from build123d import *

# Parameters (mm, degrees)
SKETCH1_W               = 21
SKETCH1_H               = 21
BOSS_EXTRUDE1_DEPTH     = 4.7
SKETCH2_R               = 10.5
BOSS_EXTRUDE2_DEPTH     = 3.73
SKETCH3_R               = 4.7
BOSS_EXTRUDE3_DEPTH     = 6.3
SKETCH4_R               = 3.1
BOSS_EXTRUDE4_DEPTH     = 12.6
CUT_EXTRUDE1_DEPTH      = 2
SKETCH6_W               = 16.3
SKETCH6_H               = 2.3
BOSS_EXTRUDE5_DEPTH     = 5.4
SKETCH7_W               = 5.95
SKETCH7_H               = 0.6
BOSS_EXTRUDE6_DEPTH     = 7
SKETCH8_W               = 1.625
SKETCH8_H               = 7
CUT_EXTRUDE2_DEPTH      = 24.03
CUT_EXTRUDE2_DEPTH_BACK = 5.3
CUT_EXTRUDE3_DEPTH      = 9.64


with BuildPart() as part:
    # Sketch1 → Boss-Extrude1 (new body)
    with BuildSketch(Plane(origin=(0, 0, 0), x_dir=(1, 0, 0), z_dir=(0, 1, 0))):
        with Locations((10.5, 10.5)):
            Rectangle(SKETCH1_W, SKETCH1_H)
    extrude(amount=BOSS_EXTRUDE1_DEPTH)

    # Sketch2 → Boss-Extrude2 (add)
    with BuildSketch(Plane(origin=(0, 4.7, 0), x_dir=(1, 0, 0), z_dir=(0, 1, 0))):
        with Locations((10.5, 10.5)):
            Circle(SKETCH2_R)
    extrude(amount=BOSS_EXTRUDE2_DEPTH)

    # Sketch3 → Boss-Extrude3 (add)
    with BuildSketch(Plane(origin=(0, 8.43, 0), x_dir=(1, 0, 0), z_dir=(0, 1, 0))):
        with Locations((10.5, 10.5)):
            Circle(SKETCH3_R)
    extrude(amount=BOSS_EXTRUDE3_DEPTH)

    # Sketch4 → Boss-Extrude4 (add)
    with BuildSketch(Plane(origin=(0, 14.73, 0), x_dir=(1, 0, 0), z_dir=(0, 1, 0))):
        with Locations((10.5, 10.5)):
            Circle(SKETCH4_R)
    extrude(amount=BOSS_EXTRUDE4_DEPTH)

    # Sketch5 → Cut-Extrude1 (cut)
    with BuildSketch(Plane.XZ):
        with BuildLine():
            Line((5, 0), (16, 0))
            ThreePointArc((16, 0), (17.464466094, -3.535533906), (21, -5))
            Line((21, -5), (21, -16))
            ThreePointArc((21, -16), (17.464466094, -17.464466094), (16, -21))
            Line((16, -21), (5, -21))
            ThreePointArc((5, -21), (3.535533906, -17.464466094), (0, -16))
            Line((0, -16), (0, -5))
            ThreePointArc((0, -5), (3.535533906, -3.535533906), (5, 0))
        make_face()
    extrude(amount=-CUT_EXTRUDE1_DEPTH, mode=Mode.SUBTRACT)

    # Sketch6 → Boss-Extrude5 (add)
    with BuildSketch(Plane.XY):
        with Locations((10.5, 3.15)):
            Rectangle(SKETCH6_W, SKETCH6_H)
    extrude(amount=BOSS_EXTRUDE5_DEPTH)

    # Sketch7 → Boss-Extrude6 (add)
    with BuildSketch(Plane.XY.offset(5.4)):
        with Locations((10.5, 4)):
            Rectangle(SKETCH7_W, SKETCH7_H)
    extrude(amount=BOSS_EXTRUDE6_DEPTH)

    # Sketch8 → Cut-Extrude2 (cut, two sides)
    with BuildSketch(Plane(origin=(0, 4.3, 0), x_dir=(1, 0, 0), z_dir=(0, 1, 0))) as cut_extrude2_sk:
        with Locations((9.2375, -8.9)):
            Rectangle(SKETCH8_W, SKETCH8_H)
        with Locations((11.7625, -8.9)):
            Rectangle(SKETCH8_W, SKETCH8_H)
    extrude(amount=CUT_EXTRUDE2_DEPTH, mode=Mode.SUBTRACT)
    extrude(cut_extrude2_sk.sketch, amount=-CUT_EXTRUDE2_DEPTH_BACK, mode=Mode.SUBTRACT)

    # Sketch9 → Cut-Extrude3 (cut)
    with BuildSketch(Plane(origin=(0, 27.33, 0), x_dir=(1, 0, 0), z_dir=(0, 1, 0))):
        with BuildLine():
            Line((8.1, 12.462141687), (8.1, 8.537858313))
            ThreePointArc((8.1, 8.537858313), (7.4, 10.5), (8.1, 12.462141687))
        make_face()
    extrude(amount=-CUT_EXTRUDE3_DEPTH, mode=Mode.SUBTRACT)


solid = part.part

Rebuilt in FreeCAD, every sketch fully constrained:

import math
import FreeCAD as App
import Part
import Sketcher
from FreeCAD import Vector
Q = App.Units.Quantity

doc = App.newDocument("Part")
body = doc.addObject("PartDesign::Body", "Body")

# Sketch on XZ plane
sketch1 = body.newObject("Sketcher::SketchObject", "Sketch")
sketch1.AttachmentSupport = (doc.getObject("XZ_Plane"), [""])
sketch1.MapMode = "FlatFace"
sketch1.addGeometry([
    Part.LineSegment(Vector(0, -21, 0), Vector(0, 0, 0)),
    Part.LineSegment(Vector(0, 0, 0), Vector(21, 0, 0)),
    Part.LineSegment(Vector(21, 0, 0), Vector(21, -21, 0)),
    Part.LineSegment(Vector(21, -21, 0), Vector(0, -21, 0)),
], False)
sketch1.addConstraint([
    Sketcher.Constraint("Coincident", 0, 2, 1, 1),
    Sketcher.Constraint("Coincident", 1, 2, 2, 1),
    Sketcher.Constraint("Coincident", 2, 2, 3, 1),
    Sketcher.Constraint("Coincident", 3, 2, 0, 1),
    Sketcher.Constraint("Vertical", 0),
    Sketcher.Constraint("Horizontal", 1),
    Sketcher.Constraint("Vertical", 2),
    Sketcher.Constraint("Horizontal", 3),
    Sketcher.Constraint("Coincident", 0, 2, -1, 1),
    Sketcher.Constraint("Equal", 3, 0),
    Sketcher.Constraint("DistanceX", 1, 1, 1, 2, Q("21 mm")),
])
pad1 = body.newObject("PartDesign::Pad", "Pad")
pad1.Profile = sketch1
pad1.Length = 4.7
pad1.Reversed = True

# Sketch on XZ plane
sketch2 = body.newObject("Sketcher::SketchObject", "Sketch001")
sketch2.AttachmentSupport = (doc.getObject("XZ_Plane"), [""])
sketch2.MapMode = "FlatFace"
sketch2.AttachmentOffset = App.Placement(Vector(0, 0, -4.7), App.Rotation())
sketch2.addGeometry(Part.Circle(Vector(10, -10, 0), Vector(0, 0, 1), 10), False)
sketch2.addConstraint([
    Sketcher.Constraint("Diameter", 0, Q("21 mm")),
    Sketcher.Constraint("DistanceX", -1, 1, 0, 3, Q("10.5 mm")),
    Sketcher.Constraint("DistanceY", 0, 3, -1, 1, Q("10.5 mm")),
])
pad2 = body.newObject("PartDesign::Pad", "Pad001")
pad2.Profile = sketch2
pad2.Length = 3.73
pad2.Reversed = True

# Sketch on XZ plane
sketch3 = body.newObject("Sketcher::SketchObject", "Sketch002")
sketch3.AttachmentSupport = (doc.getObject("XZ_Plane"), [""])
sketch3.MapMode = "FlatFace"
sketch3.AttachmentOffset = App.Placement(Vector(0, 0, -8.43), App.Rotation())
sketch3.addGeometry(Part.Circle(Vector(10.5, -10.5, 0), Vector(0, 0, 1), 4.7), False)
sketch3.addConstraint([
    Sketcher.Constraint("Diameter", 0, Q("9.4 mm")),
    Sketcher.Constraint("DistanceX", -1, 1, 0, 3, Q("10.5 mm")),
    Sketcher.Constraint("DistanceY", 0, 3, -1, 1, Q("10.5 mm")),
])
pad3 = body.newObject("PartDesign::Pad", "Pad002")
pad3.Profile = sketch3
pad3.Length = 6.3
pad3.Reversed = True

# Sketch on XZ plane
sketch4 = body.newObject("Sketcher::SketchObject", "Sketch003")
sketch4.AttachmentSupport = (doc.getObject("XZ_Plane"), [""])
sketch4.MapMode = "FlatFace"
sketch4.AttachmentOffset = App.Placement(Vector(0, 0, -14.73), App.Rotation())
sketch4.addGeometry(Part.Circle(Vector(10.5, -10.5, 0), Vector(0, 0, 1), 3.1), False)
sketch4.addConstraint([
    Sketcher.Constraint("Diameter", 0, Q("6.2 mm")),
    Sketcher.Constraint("DistanceX", -1, 1, 0, 3, Q("10.5 mm")),
    Sketcher.Constraint("DistanceY", 0, 3, -1, 1, Q("10.5 mm")),
])
pad4 = body.newObject("PartDesign::Pad", "Pad003")
pad4.Profile = sketch4
pad4.Length = 12.6
pad4.Reversed = True

# Sketch on XZ plane
sketch5 = body.newObject("Sketcher::SketchObject", "Sketch004")
sketch5.AttachmentSupport = (doc.getObject("XZ_Plane"), [""])
sketch5.MapMode = "FlatFace"
sketch5.addGeometry([
    Part.LineSegment(Vector(16, 0, 0), Vector(5, 0, 0)),  # 0
    Part.ArcOfCircle(Part.Circle(Vector(0, 0, 0), Vector(0, 0, 1), 5), math.radians(-90), math.radians(0)),  # 1
    Part.LineSegment(Vector(0, -5, 0), Vector(0, -16, 0)),  # 2
    Part.ArcOfCircle(Part.Circle(Vector(0, -21, 0), Vector(0, 0, 1), 5), math.radians(0), math.radians(90)),  # 3
    Part.LineSegment(Vector(5, -21, 0), Vector(16, -21, 0)),  # 4
    Part.ArcOfCircle(Part.Circle(Vector(21, -21, 0), Vector(0, 0, 1), 5), math.radians(90), math.radians(180)),  # 5
    Part.LineSegment(Vector(21, -16, 0), Vector(21, -5, 0)),  # 6
    Part.ArcOfCircle(Part.Circle(Vector(21, 0, 0), Vector(0, 0, 1), 5), math.radians(180), math.radians(270)),  # 7
], False)
sketch5.addConstraint([
    Sketcher.Constraint("Coincident", 0, 2, 1, 2),
    Sketcher.Constraint("Coincident", 1, 1, 2, 1),
    Sketcher.Constraint("Coincident", 2, 2, 3, 2),
    Sketcher.Constraint("Coincident", 3, 1, 4, 1),
    Sketcher.Constraint("Coincident", 4, 2, 5, 2),
    Sketcher.Constraint("Coincident", 5, 1, 6, 1),
    Sketcher.Constraint("Coincident", 6, 2, 7, 2),
    Sketcher.Constraint("Coincident", 7, 1, 0, 1),
    Sketcher.Constraint("Horizontal", 0),
    Sketcher.Constraint("Vertical", 2),
    Sketcher.Constraint("Horizontal", 4),
    Sketcher.Constraint("Vertical", 6),
    Sketcher.Constraint("Coincident", 1, 3, -1, 1),
    Sketcher.Constraint("Equal", 1, 3),
    Sketcher.Constraint("Equal", 3, 5),
    Sketcher.Constraint("Equal", 5, 7),
    Sketcher.Constraint("PointOnObject", 3, 3, -2),
    Sketcher.Constraint("PointOnObject", 7, 3, -1),
    Sketcher.Constraint("PointOnObject", 0, 2, -1),
    Sketcher.Constraint("PointOnObject", 1, 1, -2),
    Sketcher.Constraint("Horizontal", 3, 3, 5, 3),
    Sketcher.Constraint("Horizontal", 5, 3, 3, 1),
    Sketcher.Constraint("Vertical", 5, 3, 7, 3),
    Sketcher.Constraint("Vertical", 7, 3, 5, 1),
    Sketcher.Constraint("Equal", 4, 2),
    Sketcher.Constraint("Radius", 1, Q("5 mm")),
    Sketcher.Constraint("DistanceX", 0, 2, 0, 1, Q("11 mm")),
])
pocket1 = body.newObject("PartDesign::Pocket", "Pocket")
pocket1.Profile = sketch5
pocket1.Length = 2

# Sketch on XY plane
sketch6 = body.newObject("Sketcher::SketchObject", "Sketch005")
sketch6.AttachmentSupport = (doc.getObject("XY_Plane"), [""])
sketch6.MapMode = "FlatFace"
sketch6.addGeometry([
    Part.LineSegment(Vector(2.4, 4.3, 0), Vector(2.4, 2, 0)),
    Part.LineSegment(Vector(2.4, 2, 0), Vector(18.6, 2, 0)),
    Part.LineSegment(Vector(18.6, 2, 0), Vector(18.6, 4.3, 0)),
    Part.LineSegment(Vector(18.6, 4.3, 0), Vector(2.4, 4.3, 0)),
], False)
sketch6.addConstraint([
    Sketcher.Constraint("Coincident", 0, 2, 1, 1),
    Sketcher.Constraint("Coincident", 1, 2, 2, 1),
    Sketcher.Constraint("Coincident", 2, 2, 3, 1),
    Sketcher.Constraint("Coincident", 3, 2, 0, 1),
    Sketcher.Constraint("Vertical", 0),
    Sketcher.Constraint("Horizontal", 1),
    Sketcher.Constraint("Vertical", 2),
    Sketcher.Constraint("Horizontal", 3),
    Sketcher.Constraint("DistanceX", 1, 1, 1, 2, Q("16.3 mm")),
    Sketcher.Constraint("DistanceY", 0, 2, 0, 1, Q("2.3 mm")),
    Sketcher.Constraint("DistanceY", -1, 1, 0, 2, Q("2 mm")),
    Sketcher.Constraint("DistanceX", -1, 1, 0, 2, Q("2.35 mm")),
])
pad5 = body.newObject("PartDesign::Pad", "Pad004")
pad5.Profile = sketch6
pad5.Length = 5.4

# Sketch on XY plane
sketch7 = body.newObject("Sketcher::SketchObject", "Sketch006")
sketch7.AttachmentSupport = (doc.getObject("XY_Plane"), [""])
sketch7.MapMode = "FlatFace"
sketch7.AttachmentOffset = App.Placement(Vector(0, 0, 5.4), App.Rotation())
sketch7.addGeometry([
    Part.LineSegment(Vector(7.5, 4.3, 0), Vector(7.5, 3.7, 0)),
    Part.LineSegment(Vector(7.5, 3.7, 0), Vector(13.5, 3.7, 0)),
    Part.LineSegment(Vector(13.5, 3.7, 0), Vector(13.5, 4.3, 0)),
    Part.LineSegment(Vector(13.5, 4.3, 0), Vector(7.5, 4.3, 0)),
], False)
sketch7.addConstraint([
    Sketcher.Constraint("Coincident", 0, 2, 1, 1),
    Sketcher.Constraint("Coincident", 1, 2, 2, 1),
    Sketcher.Constraint("Coincident", 2, 2, 3, 1),
    Sketcher.Constraint("Coincident", 3, 2, 0, 1),
    Sketcher.Constraint("Vertical", 0),
    Sketcher.Constraint("Horizontal", 1),
    Sketcher.Constraint("Vertical", 2),
    Sketcher.Constraint("Horizontal", 3),
    Sketcher.Constraint("DistanceY", 0, 2, 0, 1, Q("0.6 mm")),
    Sketcher.Constraint("DistanceX", 1, 1, 1, 2, Q("5.95 mm")),
    Sketcher.Constraint("DistanceY", -1, 1, 0, 2, Q("3.7 mm")),
    Sketcher.Constraint("DistanceX", -1, 1, 0, 2, Q("7.525 mm")),
])
pad6 = body.newObject("PartDesign::Pad", "Pad005")
pad6.Profile = sketch7
pad6.Length = 7

# Sketch on XZ plane
sketch8 = body.newObject("Sketcher::SketchObject", "Sketch007")
sketch8.AttachmentSupport = (doc.getObject("XZ_Plane"), [""])
sketch8.MapMode = "FlatFace"
sketch8.AttachmentOffset = App.Placement(Vector(0, 0, -4.3), App.Rotation())
sketch8.addGeometry([
    Part.LineSegment(Vector(8.4, 5.4, 0), Vector(8.4, 12.4, 0)),  # 0
    Part.LineSegment(Vector(8.4, 12.4, 0), Vector(10.1, 12.4, 0)),  # 1
    Part.LineSegment(Vector(10.1, 12.4, 0), Vector(10.1, 5.4, 0)),  # 2
    Part.LineSegment(Vector(10.1, 5.4, 0), Vector(8.4, 5.4, 0)),  # 3
    Part.LineSegment(Vector(10.9, 5.4, 0), Vector(10.9, 12.4, 0)),  # 4
    Part.LineSegment(Vector(10.9, 12.4, 0), Vector(12.6, 12.4, 0)),  # 5
    Part.LineSegment(Vector(12.6, 12.4, 0), Vector(12.6, 5.4, 0)),  # 6
    Part.LineSegment(Vector(12.6, 5.4, 0), Vector(10.9, 5.4, 0)),  # 7
], False)
sketch8.addConstraint([
    Sketcher.Constraint("Coincident", 0, 2, 1, 1),
    Sketcher.Constraint("Coincident", 1, 2, 2, 1),
    Sketcher.Constraint("Coincident", 2, 2, 3, 1),
    Sketcher.Constraint("Coincident", 3, 2, 0, 1),
    Sketcher.Constraint("Coincident", 4, 2, 5, 1),
    Sketcher.Constraint("Coincident", 5, 2, 6, 1),
    Sketcher.Constraint("Coincident", 6, 2, 7, 1),
    Sketcher.Constraint("Coincident", 7, 2, 4, 1),
    Sketcher.Constraint("Vertical", 0),
    Sketcher.Constraint("Horizontal", 1),
    Sketcher.Constraint("Vertical", 2),
    Sketcher.Constraint("Horizontal", 3),
    Sketcher.Constraint("Vertical", 4),
    Sketcher.Constraint("Horizontal", 5),
    Sketcher.Constraint("Vertical", 6),
    Sketcher.Constraint("Horizontal", 7),
    Sketcher.Constraint("Horizontal", 1, 2, 4, 2),
    Sketcher.Constraint("Horizontal", 3, 2, 6, 2),
    Sketcher.Constraint("Equal", 3, 5),
    Sketcher.Constraint("DistanceY", 0, 1, 0, 2, Q("7 mm")),
    Sketcher.Constraint("DistanceY", -1, 1, 0, 2, Q("12.4 mm")),
    Sketcher.Constraint("DistanceX", 1, 2, 4, 2, Q("0.9 mm")),
    Sketcher.Constraint("DistanceX", 1, 1, 1, 2, Q("1.625 mm")),
    Sketcher.Constraint("DistanceX", -1, 1, 1, 2, Q("10.05 mm")),
])
pocket2 = body.newObject("PartDesign::Pocket", "Pocket001")
pocket2.Profile = sketch8
pocket2.Type = "ThroughAll"
pocket2.Midplane = True

# Sketch on XZ plane
sketch9 = body.newObject("Sketcher::SketchObject", "Sketch008")
sketch9.AttachmentSupport = (doc.getObject("XZ_Plane"), [""])
sketch9.MapMode = "FlatFace"
sketch9.AttachmentOffset = App.Placement(Vector(0, 0, -27.33), App.Rotation())
sketch9.addGeometry([
    Part.LineSegment(Vector(8.1, -8.5, 0), Vector(8.1, -12.5, 0)),
    Part.ArcOfCircle(Part.Circle(Vector(10.5, -10.5, 0), Vector(0, 0, 1), 3.1), math.radians(141), math.radians(219)),
], False)
sketch9.addConstraint([
    Sketcher.Constraint("Coincident", 0, 1, 1, 1),
    Sketcher.Constraint("Coincident", 1, 2, 0, 2),
    Sketcher.Constraint("Vertical", 0),
    Sketcher.Constraint("Radius", 1, Q("3.1 mm")),
    Sketcher.Constraint("DistanceX", -1, 1, 1, 3, Q("10.5 mm")),
    Sketcher.Constraint("DistanceY", 1, 3, -1, 1, Q("10.5 mm")),
    Sketcher.Constraint("DistanceX", -1, 1, 0, 1, Q("8.1 mm")),
])
pocket3 = body.newObject("PartDesign::Pocket", "Pocket002")
pocket3.Profile = sketch9
pocket3.Length = 9.64
pocket3.Reversed = True

doc.recompute()
